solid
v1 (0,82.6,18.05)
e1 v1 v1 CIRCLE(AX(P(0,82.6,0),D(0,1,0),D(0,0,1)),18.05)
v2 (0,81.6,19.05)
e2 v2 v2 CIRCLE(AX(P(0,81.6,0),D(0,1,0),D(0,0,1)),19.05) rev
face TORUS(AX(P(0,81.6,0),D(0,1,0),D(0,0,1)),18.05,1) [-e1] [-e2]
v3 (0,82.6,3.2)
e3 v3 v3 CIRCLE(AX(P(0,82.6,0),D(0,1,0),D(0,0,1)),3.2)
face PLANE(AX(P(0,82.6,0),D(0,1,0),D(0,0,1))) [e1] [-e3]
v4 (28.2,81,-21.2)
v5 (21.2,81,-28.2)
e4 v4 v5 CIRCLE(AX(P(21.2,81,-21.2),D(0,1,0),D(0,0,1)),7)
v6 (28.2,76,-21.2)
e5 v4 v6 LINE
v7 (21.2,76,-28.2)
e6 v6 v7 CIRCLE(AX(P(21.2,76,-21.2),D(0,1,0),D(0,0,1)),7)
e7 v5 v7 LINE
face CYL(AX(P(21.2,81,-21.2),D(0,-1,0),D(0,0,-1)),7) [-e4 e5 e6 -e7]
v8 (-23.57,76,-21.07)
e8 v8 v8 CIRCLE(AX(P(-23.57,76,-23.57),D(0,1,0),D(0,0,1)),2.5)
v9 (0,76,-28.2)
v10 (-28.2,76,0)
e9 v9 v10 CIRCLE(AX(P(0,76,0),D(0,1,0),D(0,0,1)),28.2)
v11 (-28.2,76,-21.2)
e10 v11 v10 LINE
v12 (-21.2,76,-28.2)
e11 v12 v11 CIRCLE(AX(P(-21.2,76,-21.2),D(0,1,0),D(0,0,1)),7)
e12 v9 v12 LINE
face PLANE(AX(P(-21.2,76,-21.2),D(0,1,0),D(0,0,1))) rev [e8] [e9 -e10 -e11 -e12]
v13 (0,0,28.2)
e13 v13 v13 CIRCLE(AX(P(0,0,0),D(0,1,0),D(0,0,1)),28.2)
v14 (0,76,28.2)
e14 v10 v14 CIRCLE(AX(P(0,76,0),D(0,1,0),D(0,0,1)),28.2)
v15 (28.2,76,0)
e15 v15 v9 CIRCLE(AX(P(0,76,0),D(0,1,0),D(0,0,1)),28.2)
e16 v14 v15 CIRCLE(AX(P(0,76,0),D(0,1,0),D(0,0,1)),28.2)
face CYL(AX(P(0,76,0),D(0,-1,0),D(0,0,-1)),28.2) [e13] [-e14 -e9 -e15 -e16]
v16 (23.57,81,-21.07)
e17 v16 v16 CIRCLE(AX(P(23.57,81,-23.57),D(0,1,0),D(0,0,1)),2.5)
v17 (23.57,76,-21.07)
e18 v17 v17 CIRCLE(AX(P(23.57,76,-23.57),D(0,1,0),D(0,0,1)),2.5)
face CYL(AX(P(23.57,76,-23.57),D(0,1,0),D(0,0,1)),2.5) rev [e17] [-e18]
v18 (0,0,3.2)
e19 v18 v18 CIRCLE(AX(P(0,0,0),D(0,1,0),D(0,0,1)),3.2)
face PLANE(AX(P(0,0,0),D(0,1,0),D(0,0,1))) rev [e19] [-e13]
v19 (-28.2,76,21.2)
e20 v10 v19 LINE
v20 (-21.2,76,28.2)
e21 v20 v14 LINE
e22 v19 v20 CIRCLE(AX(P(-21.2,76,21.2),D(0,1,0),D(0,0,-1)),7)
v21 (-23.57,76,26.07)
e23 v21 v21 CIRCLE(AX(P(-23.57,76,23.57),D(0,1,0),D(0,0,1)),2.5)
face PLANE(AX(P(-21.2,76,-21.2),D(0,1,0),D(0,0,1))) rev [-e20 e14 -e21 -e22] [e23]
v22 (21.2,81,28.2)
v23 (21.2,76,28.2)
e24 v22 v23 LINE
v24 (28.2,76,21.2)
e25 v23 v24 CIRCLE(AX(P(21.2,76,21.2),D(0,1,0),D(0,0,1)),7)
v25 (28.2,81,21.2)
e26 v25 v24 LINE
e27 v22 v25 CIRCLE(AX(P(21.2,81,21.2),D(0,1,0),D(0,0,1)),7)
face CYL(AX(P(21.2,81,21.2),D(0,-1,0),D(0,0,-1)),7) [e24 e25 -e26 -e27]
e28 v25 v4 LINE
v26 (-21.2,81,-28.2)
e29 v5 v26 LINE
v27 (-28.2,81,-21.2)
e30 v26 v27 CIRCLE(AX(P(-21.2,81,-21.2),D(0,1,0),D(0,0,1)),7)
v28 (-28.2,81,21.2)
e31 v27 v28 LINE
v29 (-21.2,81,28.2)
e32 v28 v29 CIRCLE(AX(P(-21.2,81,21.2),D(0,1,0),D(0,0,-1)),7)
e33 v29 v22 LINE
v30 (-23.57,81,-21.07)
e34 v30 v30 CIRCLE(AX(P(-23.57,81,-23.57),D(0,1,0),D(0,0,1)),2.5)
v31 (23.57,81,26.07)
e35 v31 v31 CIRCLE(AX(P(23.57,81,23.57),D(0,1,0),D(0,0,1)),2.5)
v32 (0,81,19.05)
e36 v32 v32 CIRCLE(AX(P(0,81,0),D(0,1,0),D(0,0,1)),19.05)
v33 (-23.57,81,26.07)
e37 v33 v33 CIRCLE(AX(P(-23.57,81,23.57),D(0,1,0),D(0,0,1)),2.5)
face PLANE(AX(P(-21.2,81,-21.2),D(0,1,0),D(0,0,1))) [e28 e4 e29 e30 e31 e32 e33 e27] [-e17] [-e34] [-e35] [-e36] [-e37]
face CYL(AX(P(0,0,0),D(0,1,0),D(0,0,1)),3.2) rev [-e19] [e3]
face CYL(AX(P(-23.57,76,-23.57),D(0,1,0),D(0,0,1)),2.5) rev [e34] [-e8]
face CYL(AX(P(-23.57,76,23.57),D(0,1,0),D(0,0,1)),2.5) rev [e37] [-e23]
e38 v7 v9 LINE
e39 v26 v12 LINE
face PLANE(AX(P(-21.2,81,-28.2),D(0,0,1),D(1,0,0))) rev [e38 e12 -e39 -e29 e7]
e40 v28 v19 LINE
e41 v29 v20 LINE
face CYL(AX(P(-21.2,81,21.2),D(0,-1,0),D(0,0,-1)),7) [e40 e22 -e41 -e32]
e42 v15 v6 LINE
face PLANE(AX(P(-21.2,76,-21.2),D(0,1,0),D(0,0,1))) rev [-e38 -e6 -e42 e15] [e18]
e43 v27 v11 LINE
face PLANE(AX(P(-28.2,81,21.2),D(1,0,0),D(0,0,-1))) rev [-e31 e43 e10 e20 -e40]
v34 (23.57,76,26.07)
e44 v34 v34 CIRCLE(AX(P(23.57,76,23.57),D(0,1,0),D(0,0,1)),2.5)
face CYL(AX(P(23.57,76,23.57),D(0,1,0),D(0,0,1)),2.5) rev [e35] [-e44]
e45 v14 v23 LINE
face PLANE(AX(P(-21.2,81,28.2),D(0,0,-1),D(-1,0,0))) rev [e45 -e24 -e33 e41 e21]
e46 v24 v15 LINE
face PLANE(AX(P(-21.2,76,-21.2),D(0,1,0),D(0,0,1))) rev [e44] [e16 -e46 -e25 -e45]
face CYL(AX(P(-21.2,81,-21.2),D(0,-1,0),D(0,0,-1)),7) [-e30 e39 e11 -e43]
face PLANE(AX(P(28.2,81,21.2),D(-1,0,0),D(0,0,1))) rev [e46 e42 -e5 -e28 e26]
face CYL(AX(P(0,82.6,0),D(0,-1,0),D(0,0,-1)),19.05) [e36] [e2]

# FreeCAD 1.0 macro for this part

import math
import FreeCAD as App
import Part
import Sketcher

V = App.Vector


def edges_at(feature, points):
    """Names of the edges that pass closest to the given points."""
    edges = feature.Shape.Edges
    near = lambda p: min(range(len(edges)), key=lambda i: edges[i].distToShape(Part.Vertex(*p))[0])
    return sorted({f"Edge{near(p) + 1}" for p in points})

doc = App.newDocument("Part")
body = doc.addObject("PartDesign::Body", "Body")

# Sketch on XZ plane
sketch1 = body.newObject("Sketcher::SketchObject", "Sketch")
sketch1.AttachmentSupport = (doc.getObject("XZ_Plane"), [""])
sketch1.MapMode = "FlatFace"
sketch1.addGeometry(Part.Circle(V(0, 0, 0), V(0, 0, 1), 28), False)
sketch1.addConstraint(Sketcher.Constraint("Coincident", 0, 3, -1, 1))
sketch1.addConstraint(Sketcher.Constraint("Diameter", 0, 56.4))
pad1 = body.newObject("PartDesign::Pad", "Pad")
pad1.Profile = sketch1
pad1.Length = 76
pad1.Reversed = True

# Sketch on XZ plane
sketch2 = body.newObject("Sketcher::SketchObject", "Sketch001")
sketch2.AttachmentSupport = (doc.getObject("XZ_Plane"), [""])
sketch2.MapMode = "FlatFace"
sketch2.AttachmentOffset = App.Placement(V(0, 0, -76), App.Rotation())
sketch2.addGeometry(Part.LineSegment(V(-21, 28, 0), V(21, 28, 0)), False)
sketch2.addGeometry(Part.ArcOfCircle(Part.Circle(V(21, 21, 0), V(0, 0, 1), 7), math.radians(0), math.radians(90)), False)
sketch2.addGeometry(Part.LineSegment(V(28, 21, 0), V(28, -21, 0)), False)
sketch2.addGeometry(Part.ArcOfCircle(Part.Circle(V(21, -21, 0), V(0, 0, 1), 7), math.radians(-90), math.radians(0)), False)
sketch2.addGeometry(Part.LineSegment(V(21, -28, 0), V(-21, -28, 0)), False)
sketch2.addGeometry(Part.ArcOfCircle(Part.Circle(V(-21, -21, 0), V(0, 0, 1), 7), math.radians(-180), math.radians(-90)), False)
sketch2.addGeometry(Part.LineSegment(V(-28, -21, 0), V(-28, 21, 0)), False)
sketch2.addGeometry(Part.ArcOfCircle(Part.Circle(V(-21, 21, 0), V(0, 0, 1), 7), math.radians(90), math.radians(180)), False)
sketch2.addConstraint(Sketcher.Constraint("Tangent", 0, 2, 1, 2))
sketch2.addConstraint(Sketcher.Constraint("Tangent", 1, 1, 2, 1))
sketch2.addConstraint(Sketcher.Constraint("Tangent", 2, 2, 3, 2))
sketch2.addConstraint(Sketcher.Constraint("Tangent", 3, 1, 4, 1))
sketch2.addConstraint(Sketcher.Constraint("Tangent", 4, 2, 5, 2))
sketch2.addConstraint(Sketcher.Constraint("Tangent", 5, 1, 6, 1))
sketch2.addConstraint(Sketcher.Constraint("Tangent", 6, 2, 7, 2))
sketch2.addConstraint(Sketcher.Constraint("Tangent", 7, 1, 0, 1))
sketch2.addConstraint(Sketcher.Constraint("Horizontal", 0))
sketch2.addConstraint(Sketcher.Constraint("Vertical", 2))
sketch2.addConstraint(Sketcher.Constraint("Horizontal", 4))
sketch2.addConstraint(Sketcher.Constraint("Vertical", 6))
sketch2.addConstraint(Sketcher.Constraint("Equal", 1, 3))
sketch2.addConstraint(Sketcher.Constraint("Equal", 3, 5))
sketch2.addConstraint(Sketcher.Constraint("Equal", 5, 7))
sketch2.addConstraint(Sketcher.Constraint("Symmetric", 1, 3, 5, 3, -1, 1))
sketch2.addConstraint(Sketcher.Constraint("Equal", 4, 2))
sketch2.addConstraint(Sketcher.Constraint("Radius", 1, 7.0))
sketch2.addConstraint(Sketcher.Constraint("DistanceX", 0, 1, 0, 2, 42.4))
pad2 = body.newObject("PartDesign::Pad", "Pad001")
pad2.Profile = sketch2
pad2.Length = 5
pad2.Reversed = True

# Sketch on XZ plane
sketch3 = body.newObject("Sketcher::SketchObject", "Sketch002")
sketch3.AttachmentSupport = (doc.getObject("XZ_Plane"), [""])
sketch3.MapMode = "FlatFace"
sketch3.AttachmentOffset = App.Placement(V(0, 0, -81), App.Rotation())
sketch3.addGeometry(Part.Circle(V(-23.6, -23.6, 0), V(0, 0, 1), 2.5), False)
sketch3.addGeometry(Part.Circle(V(23.6, -23.6, 0), V(0, 0, 1), 2.5), False)
sketch3.addGeometry(Part.Circle(V(-23.6, 23.6, 0), V(0, 0, 1), 2.5), False)
sketch3.addGeometry(Part.Circle(V(23.6, 23.6, 0), V(0, 0, 1), 2.5), False)
sketch3.addConstraint(Sketcher.Constraint("Equal", 0, 1))
sketch3.addConstraint(Sketcher.Constraint("Equal", 1, 2))
sketch3.addConstraint(Sketcher.Constraint("Equal", 2, 3))
sketch3.addConstraint(Sketcher.Constraint("Symmetric", 1, 3, 2, 3, -1, 1))
sketch3.addConstraint(Sketcher.Constraint("Symmetric", 0, 3, 3, 3, -1, 1))
sketch3.addConstraint(Sketcher.Constraint("Symmetric", 0, 3, 1, 3, -2))
sketch3.addConstraint(Sketcher.Constraint("Diameter", 0, 5.0))
sketch3.addConstraint(Sketcher.Constraint("DistanceX", 0, 3, -1, 1, 23.57))
sketch3.addConstraint(Sketcher.Constraint("DistanceY", 0, 3, -1, 1, 23.57))
pocket1 = body.newObject("PartDesign::Pocket", "Pocket")
pocket1.Profile = sketch3
pocket1.Length = 5
pocket1.Reversed = True

# Sketch on XZ plane
sketch4 = body.newObject("Sketcher::SketchObject", "Sketch003")
sketch4.AttachmentSupport = (doc.getObject("XZ_Plane"), [""])
sketch4.MapMode = "FlatFace"
sketch4.AttachmentOffset = App.Placement(V(0, 0, -81), App.Rotation())
sketch4.addGeometry(Part.Circle(V(0, 0, 0), V(0, 0, 1), 19), False)
sketch4.addConstraint(Sketcher.Constraint("Coincident", 0, 3, -1, 1))
sketch4.addConstraint(Sketcher.Constraint("Diameter", 0, 38.1))
pad3 = body.newObject("PartDesign::Pad", "Pad002")
pad3.Profile = sketch4
pad3.Length = 1.6
pad3.Reversed = True
doc.recompute()

fillet = body.newObject("PartDesign::Fillet", "Fillet")
fillet.Base = (pad3, edges_at(pad3, [(-19.05, 82.6, 0)]))
fillet.Radius = 1

# Sketch on XZ plane
sketch5 = body.newObject("Sketcher::SketchObject", "Sketch004")
sketch5.AttachmentSupport = (doc.getObject("XZ_Plane"), [""])
sketch5.MapMode = "FlatFace"
sketch5.AttachmentOffset = App.Placement(V(0, 0, -82.6), App.Rotation())
sketch5.addGeometry(Part.Circle(V(0, 0, 0), V(0, 0, 1), 3.2), False)
sketch5.addConstraint(Sketcher.Constraint("Coincident", 0, 3, -1, 1))
sketch5.addConstraint(Sketcher.Constraint("Diameter", 0, 6.4))
pocket2 = body.newObject("PartDesign::Pocket", "Pocket001")
pocket2.Profile = sketch5
pocket2.Type = "ThroughAll"
pocket2.Reversed = True

doc.recompute()
